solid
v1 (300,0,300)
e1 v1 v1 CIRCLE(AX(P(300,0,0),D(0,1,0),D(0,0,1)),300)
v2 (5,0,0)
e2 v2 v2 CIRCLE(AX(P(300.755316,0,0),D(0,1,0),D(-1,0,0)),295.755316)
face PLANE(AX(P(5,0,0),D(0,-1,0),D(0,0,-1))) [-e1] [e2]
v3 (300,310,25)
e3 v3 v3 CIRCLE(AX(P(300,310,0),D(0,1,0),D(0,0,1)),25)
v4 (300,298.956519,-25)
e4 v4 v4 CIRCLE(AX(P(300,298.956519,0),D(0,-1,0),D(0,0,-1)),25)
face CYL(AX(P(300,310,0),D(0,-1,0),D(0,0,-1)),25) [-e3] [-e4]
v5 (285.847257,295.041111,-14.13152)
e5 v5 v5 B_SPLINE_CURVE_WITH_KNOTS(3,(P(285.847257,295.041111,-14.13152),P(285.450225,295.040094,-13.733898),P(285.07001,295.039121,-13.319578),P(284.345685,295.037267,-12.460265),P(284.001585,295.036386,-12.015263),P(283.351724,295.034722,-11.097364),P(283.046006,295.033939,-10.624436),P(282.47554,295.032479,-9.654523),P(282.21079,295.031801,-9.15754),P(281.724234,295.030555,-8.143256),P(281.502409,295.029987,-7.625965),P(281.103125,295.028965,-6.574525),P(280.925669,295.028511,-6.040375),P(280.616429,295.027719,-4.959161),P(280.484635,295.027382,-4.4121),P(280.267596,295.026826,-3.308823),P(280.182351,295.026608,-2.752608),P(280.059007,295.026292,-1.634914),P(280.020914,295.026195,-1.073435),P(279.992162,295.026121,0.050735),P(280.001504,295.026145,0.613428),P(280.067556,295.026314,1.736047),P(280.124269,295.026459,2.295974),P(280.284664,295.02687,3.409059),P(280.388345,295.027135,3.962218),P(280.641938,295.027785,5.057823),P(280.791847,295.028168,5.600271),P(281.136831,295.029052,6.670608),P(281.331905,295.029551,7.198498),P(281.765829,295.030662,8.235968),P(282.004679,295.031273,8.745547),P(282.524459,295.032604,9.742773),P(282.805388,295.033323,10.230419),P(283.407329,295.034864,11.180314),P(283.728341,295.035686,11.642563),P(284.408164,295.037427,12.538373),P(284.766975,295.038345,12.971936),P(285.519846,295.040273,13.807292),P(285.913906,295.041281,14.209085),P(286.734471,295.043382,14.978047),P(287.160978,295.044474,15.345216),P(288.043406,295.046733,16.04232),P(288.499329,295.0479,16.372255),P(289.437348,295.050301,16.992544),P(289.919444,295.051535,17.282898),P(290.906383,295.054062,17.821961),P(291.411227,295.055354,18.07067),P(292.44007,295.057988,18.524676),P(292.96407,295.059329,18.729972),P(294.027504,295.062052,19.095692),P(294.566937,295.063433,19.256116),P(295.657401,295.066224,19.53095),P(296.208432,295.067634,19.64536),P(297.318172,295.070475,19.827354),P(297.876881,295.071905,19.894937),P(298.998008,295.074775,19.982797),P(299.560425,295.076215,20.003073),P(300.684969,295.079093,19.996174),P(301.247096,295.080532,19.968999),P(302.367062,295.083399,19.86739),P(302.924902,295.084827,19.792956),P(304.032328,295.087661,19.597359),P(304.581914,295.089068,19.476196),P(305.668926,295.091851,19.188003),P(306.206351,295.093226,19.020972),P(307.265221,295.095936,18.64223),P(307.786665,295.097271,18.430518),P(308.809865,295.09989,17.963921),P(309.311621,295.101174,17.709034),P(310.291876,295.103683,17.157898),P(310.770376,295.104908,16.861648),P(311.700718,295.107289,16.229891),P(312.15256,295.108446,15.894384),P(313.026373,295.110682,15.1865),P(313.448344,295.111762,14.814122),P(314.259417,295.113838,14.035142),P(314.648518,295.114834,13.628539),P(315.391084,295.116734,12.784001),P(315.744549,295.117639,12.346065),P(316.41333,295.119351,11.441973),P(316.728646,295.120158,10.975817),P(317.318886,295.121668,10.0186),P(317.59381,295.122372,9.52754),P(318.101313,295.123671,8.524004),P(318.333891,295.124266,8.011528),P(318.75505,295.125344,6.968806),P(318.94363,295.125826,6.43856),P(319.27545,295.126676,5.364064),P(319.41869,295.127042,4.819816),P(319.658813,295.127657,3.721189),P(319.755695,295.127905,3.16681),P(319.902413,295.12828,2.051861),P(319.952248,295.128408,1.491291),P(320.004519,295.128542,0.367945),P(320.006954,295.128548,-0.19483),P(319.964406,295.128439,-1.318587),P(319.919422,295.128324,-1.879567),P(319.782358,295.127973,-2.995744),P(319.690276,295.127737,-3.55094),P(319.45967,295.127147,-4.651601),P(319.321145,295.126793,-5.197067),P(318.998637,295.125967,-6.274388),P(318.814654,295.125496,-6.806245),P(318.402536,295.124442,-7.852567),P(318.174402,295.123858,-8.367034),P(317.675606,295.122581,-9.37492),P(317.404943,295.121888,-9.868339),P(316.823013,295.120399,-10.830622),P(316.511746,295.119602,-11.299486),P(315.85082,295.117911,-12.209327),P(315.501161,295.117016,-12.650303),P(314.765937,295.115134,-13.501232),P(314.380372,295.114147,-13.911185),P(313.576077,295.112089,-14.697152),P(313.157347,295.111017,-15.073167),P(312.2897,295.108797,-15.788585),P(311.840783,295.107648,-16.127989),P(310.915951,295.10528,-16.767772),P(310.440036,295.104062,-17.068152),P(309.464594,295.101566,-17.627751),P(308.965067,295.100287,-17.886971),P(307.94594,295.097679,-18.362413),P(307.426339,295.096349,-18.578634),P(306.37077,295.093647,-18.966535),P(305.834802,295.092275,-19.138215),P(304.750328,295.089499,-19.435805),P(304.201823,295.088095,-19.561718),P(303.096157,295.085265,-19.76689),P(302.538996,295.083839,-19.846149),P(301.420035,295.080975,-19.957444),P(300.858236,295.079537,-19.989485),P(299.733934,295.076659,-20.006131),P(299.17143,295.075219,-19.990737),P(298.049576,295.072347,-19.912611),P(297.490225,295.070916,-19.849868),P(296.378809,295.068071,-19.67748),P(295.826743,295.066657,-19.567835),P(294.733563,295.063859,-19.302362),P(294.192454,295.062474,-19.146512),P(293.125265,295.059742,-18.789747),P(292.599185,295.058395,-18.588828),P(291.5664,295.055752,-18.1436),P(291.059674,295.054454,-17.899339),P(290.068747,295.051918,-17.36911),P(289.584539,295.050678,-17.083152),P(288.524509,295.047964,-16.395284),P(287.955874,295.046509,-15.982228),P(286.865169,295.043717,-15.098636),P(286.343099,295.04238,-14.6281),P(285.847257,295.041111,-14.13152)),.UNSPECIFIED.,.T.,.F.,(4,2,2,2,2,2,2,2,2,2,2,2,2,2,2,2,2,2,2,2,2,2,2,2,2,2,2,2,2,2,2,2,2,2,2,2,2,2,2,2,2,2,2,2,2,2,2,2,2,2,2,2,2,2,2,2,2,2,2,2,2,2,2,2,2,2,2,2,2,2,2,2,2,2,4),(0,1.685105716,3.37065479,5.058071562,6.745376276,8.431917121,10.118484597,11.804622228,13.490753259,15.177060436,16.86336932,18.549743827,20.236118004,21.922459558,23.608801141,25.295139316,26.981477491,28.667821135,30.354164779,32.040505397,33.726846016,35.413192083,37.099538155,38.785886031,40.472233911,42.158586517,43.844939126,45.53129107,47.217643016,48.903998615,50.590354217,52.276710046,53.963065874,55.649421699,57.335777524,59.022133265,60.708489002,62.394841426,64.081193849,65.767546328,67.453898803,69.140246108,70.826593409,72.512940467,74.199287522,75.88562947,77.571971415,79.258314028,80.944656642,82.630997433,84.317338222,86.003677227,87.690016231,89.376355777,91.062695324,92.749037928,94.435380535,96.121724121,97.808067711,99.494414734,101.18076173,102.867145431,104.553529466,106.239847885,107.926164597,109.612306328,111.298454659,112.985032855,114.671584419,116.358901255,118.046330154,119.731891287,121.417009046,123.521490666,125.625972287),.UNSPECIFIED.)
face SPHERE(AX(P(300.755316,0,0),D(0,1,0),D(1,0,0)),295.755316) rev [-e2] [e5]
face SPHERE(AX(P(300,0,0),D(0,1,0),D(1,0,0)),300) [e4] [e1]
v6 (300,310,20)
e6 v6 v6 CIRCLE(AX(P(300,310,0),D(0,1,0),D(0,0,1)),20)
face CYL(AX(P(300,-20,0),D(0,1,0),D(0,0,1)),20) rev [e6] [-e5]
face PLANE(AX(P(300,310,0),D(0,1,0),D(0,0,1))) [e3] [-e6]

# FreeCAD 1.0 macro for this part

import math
import FreeCAD as App
import Part
import Sketcher
from FreeCAD import Vector
Q = App.Units.Quantity

doc = App.newDocument("Part")
body = doc.addObject("PartDesign::Body", "Body")

sketch1 = body.newObject("Sketcher::SketchObject", "Sketch")
sketch1.AttachmentSupport = (doc.getObject("XY_Plane"), [""])
sketch1.MapMode = "FlatFace"
sketch1.addGeometry(Part.LineSegment(Vector(0, 0, 0), Vector(5, 0, 0)), False)
sketch1.addGeometry(Part.ArcOfCircle(Part.Circle(Vector(300, 0, 0), Vector(0, 0, 1), 295), math.radians(90), math.radians(180)), False)
sketch1.addGeometry(Part.LineSegment(Vector(300, 295, 0), Vector(300, 300, 0)), False)
sketch1.addGeometry(Part.ArcOfCircle(Part.Circle(Vector(300, 0, 0), Vector(0, 0, 1), 300), math.radians(90), math.radians(180)), False)
sketch1.addGeometry(Part.LineSegment(Vector(300, 300, 0), Vector(300, 0, 0)), True)
sketch1.addConstraint(Sketcher.Constraint("Coincident", 0, 2, 1, 2))
sketch1.addConstraint(Sketcher.Constraint("Coincident", 1, 1, 2, 1))
sketch1.addConstraint(Sketcher.Constraint("Coincident", 2, 2, 3, 1))
sketch1.addConstraint(Sketcher.Constraint("Coincident", 3, 2, 0, 1))
sketch1.addConstraint(Sketcher.Constraint("Horizontal", 0))
sketch1.addConstraint(Sketcher.Constraint("Vertical", 2))
sketch1.addConstraint(Sketcher.Constraint("Vertical", 4))
sketch1.addConstraint(Sketcher.Constraint("Coincident", 3, 2, -1, 1))
sketch1.addConstraint(Sketcher.Constraint("Coincident", 3, 3, 1, 3))
sketch1.addConstraint(Sketcher.Constraint("Coincident", 4, 1, 2, 2))
sketch1.addConstraint(Sketcher.Constraint("Coincident", 4, 2, 1, 3))
sketch1.addConstraint(Sketcher.Constraint("PointOnObject", 1, 3, -1))
sketch1.addConstraint(Sketcher.Constraint("Radius", 1, Q("295 mm")))
sketch1.addConstraint(Sketcher.Constraint("Radius", 3, Q("300 mm")))
revolution = body.newObject("PartDesign::Revolution", "Revolution")
revolution.Profile = sketch1
revolution.ReferenceAxis = (sketch1, ["Axis0"])
revolution.Angle = 360

sketch2 = body.newObject("Sketcher::SketchObject", "Sketch001")
sketch2.AttachmentSupport = (doc.getObject("XZ_Plane"), [""])
sketch2.MapMode = "FlatFace"
sketch2.addGeometry(Part.Circle(Vector(300, 0, 0), Vector(0, 0, 1), 25), False)
sketch2.addConstraint(Sketcher.Constraint("PointOnObject", 0, 3, -1))
sketch2.addConstraint(Sketcher.Constraint("Diameter", 0, Q("50 mm")))
sketch2.addConstraint(Sketcher.Constraint("DistanceX", -1, 1, 0, 3, Q("300 mm")))
pad1 = body.newObject("PartDesign::Pad", "Pad")
pad1.Profile = sketch2
pad1.Length = 310
pad1.Reversed = True

sketch3 = body.newObject("Sketcher::SketchObject", "Sketch002")
sketch3.AttachmentSupport = (doc.getObject("XY_Plane"), [""])
sketch3.MapMode = "FlatFace"
sketch3.addGeometry(Part.LineSegment(Vector(301, 0, 0), Vector(301, 296, 0)), False)
sketch3.addGeometry(Part.ArcOfCircle(Part.Circle(Vector(301, 0, 0), Vector(0, 0, 1), 296), math.radians(90), math.radians(180)), False)
sketch3.addGeometry(Part.LineSegment(Vector(5, 0, 0), Vector(301, 0, 0)), False)
sketch3.addGeometry(Part.LineSegment(Vector(301, 296, 0), Vector(301, 0, 0)), True)
sketch3.addConstraint(Sketcher.Constraint("Coincident", 0, 2, 1, 1))
sketch3.addConstraint(Sketcher.Constraint("Coincident", 1, 2, 2, 1))
sketch3.addConstraint(Sketcher.Constraint("Coincident", 2, 2, 0, 1))
sketch3.addConstraint(Sketcher.Constraint("Vertical", 0))
sketch3.addConstraint(Sketcher.Constraint("Horizontal", 2))
sketch3.addConstraint(Sketcher.Constraint("Vertical", 3))
sketch3.addConstraint(Sketcher.Constraint("Coincident", 2, 2, 1, 3))
sketch3.addConstraint(Sketcher.Constraint("Coincident", 3, 1, 0, 2))
sketch3.addConstraint(Sketcher.Constraint("PointOnObject", 1, 3, -1))
sketch3.addConstraint(Sketcher.Constraint("PointOnObject", 3, 2, -1))
sketch3.addConstraint(Sketcher.Constraint("DistanceX", -1, 1, 1, 2, Q("5 mm")))
sketch3.addConstraint(Sketcher.Constraint("Radius", 1, Q("295.755316 mm")))
groove = body.newObject("PartDesign::Groove", "Groove")
groove.Profile = sketch3
groove.ReferenceAxis = (sketch3, ["Axis0"])
groove.Angle = 360

sketch4 = body.newObject("Sketcher::SketchObject", "Sketch003")
sketch4.AttachmentSupport = (doc.getObject("XZ_Plane"), [""])
sketch4.MapMode = "FlatFace"
sketch4.AttachmentOffset = App.Placement(Vector(0, 0, -310), App.Rotation())
sketch4.addGeometry(Part.Circle(Vector(300, 0, 0), Vector(0, 0, 1), 20), False)
sketch4.addConstraint(Sketcher.Constraint("PointOnObject", 0, 3, -1))
sketch4.addConstraint(Sketcher.Constraint("Diameter", 0, Q("40 mm")))
sketch4.addConstraint(Sketcher.Constraint("DistanceX", -1, 1, 0, 3, Q("300 mm")))
pocket1 = body.newObject("PartDesign::Pocket", "Pocket")
pocket1.Profile = sketch4
pocket1.Length = 330
pocket1.Reversed = True

doc.recompute()
